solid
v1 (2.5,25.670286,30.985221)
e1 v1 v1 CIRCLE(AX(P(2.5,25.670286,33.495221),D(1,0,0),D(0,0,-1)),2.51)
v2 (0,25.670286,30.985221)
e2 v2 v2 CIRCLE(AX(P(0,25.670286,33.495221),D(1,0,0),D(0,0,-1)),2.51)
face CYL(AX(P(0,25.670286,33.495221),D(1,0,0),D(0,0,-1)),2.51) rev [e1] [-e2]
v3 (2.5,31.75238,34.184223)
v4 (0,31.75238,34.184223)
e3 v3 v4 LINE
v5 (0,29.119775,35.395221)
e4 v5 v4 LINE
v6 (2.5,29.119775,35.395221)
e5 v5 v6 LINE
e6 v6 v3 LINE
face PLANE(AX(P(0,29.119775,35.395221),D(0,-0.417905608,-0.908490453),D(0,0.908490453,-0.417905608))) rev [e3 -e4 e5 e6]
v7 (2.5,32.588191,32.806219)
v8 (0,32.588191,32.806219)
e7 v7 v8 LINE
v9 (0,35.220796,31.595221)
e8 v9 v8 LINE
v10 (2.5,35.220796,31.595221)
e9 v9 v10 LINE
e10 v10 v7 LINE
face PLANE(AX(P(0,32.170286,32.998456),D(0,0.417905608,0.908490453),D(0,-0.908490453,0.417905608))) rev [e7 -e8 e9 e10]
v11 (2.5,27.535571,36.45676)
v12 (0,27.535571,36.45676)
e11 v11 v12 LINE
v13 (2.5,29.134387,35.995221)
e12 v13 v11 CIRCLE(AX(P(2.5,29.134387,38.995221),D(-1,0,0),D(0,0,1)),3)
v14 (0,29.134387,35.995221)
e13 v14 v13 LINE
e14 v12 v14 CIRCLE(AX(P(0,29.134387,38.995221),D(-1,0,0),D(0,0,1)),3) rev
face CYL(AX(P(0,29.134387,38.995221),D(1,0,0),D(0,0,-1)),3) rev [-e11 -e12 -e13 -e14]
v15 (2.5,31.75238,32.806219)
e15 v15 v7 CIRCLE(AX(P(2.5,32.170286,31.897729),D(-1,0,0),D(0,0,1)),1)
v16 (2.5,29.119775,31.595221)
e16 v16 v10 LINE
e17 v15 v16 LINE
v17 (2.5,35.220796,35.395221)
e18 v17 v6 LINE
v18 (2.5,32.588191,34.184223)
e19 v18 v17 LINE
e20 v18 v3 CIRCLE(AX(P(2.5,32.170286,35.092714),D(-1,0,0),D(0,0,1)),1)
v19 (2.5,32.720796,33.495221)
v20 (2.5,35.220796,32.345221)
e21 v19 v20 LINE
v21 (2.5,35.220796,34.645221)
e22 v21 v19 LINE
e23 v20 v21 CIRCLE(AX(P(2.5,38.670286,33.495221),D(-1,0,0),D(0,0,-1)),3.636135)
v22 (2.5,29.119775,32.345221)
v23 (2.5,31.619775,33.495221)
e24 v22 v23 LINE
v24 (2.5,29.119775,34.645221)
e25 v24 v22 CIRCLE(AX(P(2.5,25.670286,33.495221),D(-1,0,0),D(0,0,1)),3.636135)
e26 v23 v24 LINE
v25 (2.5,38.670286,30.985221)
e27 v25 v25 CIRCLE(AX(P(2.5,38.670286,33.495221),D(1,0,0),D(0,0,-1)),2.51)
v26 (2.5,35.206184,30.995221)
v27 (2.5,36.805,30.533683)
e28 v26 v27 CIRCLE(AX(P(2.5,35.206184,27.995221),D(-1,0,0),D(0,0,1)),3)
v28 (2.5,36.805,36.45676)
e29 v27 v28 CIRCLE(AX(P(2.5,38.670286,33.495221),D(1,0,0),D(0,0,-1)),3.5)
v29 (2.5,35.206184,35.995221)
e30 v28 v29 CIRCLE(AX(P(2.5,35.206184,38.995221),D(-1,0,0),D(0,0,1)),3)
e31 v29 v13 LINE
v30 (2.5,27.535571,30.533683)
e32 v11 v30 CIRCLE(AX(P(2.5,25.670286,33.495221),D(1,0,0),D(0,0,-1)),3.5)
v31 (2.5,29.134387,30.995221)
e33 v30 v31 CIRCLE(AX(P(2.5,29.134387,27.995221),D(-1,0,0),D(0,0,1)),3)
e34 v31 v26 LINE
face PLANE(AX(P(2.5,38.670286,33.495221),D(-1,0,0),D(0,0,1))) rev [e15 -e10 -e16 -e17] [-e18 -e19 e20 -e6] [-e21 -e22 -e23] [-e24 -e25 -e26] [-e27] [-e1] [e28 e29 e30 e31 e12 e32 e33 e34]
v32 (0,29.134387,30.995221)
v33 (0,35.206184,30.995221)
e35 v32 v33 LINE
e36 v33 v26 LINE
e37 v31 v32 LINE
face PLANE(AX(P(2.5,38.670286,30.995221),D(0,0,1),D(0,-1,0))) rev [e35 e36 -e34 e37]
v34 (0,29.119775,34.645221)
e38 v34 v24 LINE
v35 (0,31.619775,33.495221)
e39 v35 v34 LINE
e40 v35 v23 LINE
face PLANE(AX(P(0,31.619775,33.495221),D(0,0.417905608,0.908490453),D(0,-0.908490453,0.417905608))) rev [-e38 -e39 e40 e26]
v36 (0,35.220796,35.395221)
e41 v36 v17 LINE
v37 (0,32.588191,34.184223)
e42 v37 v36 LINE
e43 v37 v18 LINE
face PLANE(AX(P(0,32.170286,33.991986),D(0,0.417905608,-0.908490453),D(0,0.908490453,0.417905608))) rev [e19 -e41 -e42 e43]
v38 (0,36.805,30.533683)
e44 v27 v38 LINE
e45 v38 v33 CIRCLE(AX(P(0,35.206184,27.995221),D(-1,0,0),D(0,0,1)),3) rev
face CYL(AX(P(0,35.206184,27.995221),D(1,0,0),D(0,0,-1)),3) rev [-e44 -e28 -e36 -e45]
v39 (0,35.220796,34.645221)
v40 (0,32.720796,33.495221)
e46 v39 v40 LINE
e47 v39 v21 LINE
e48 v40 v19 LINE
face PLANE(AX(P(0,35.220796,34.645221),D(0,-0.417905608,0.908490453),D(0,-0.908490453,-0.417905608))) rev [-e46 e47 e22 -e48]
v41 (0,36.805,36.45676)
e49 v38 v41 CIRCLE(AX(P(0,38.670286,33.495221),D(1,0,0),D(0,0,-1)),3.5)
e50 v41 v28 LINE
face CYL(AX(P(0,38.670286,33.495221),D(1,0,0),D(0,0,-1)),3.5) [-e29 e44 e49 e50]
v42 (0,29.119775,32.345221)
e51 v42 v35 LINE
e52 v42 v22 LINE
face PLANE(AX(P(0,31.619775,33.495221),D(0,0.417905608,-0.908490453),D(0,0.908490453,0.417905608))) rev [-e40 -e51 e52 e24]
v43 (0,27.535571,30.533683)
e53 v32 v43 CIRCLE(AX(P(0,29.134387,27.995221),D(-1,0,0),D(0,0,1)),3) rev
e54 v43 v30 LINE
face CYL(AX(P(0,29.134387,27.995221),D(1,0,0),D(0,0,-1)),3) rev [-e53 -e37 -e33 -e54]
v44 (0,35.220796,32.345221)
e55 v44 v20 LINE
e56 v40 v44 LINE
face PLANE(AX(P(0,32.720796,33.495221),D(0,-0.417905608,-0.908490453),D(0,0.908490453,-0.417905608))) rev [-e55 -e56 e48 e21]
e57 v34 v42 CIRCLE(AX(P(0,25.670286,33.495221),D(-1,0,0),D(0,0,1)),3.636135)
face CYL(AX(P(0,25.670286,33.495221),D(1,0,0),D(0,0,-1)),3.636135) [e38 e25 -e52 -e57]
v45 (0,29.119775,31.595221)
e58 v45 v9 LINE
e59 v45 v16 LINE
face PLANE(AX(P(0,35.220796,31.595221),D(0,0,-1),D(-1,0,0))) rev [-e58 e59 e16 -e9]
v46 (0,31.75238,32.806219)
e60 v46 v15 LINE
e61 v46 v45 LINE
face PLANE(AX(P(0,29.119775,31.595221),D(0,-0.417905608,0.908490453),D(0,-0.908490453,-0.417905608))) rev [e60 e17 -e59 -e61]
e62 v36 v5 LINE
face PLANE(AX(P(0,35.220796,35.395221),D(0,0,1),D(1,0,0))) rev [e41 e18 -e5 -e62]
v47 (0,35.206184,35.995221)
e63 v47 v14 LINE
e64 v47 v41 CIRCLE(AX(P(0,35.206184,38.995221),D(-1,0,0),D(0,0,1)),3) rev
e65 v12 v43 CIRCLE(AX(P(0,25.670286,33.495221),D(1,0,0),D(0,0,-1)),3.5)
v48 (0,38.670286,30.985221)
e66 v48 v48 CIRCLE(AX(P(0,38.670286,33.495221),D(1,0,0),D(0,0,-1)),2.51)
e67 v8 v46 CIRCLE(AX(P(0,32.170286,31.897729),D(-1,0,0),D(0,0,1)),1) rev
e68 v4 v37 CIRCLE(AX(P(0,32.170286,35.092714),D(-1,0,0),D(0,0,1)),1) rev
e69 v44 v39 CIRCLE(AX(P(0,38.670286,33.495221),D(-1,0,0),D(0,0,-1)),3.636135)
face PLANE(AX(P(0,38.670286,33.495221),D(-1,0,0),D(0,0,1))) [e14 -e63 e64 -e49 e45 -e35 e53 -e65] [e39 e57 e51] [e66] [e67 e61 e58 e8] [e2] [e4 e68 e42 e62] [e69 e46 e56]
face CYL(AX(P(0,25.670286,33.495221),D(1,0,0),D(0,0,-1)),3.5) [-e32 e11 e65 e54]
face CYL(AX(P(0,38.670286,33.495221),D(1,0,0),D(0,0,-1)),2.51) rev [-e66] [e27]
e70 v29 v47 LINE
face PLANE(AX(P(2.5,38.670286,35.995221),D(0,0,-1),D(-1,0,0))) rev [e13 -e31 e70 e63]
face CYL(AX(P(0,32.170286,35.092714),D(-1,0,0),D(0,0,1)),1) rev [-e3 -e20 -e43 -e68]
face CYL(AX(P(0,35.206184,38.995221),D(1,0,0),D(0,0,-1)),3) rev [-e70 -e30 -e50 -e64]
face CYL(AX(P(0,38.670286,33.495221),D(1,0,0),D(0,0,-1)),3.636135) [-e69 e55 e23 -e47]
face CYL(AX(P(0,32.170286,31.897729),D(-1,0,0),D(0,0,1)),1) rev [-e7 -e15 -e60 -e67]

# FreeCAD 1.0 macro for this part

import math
import FreeCAD as App
import Part
import Sketcher
Q = App.Units.Quantity


def edges_at(feature, points):
    """Names of the edges that pass closest to the given points."""
    edges = feature.Shape.Edges
    near = lambda p: min(range(len(edges)), key=lambda i: edges[i].distToShape(Part.Vertex(*p))[0])
    return sorted({f"Edge{near(p) + 1}" for p in points})

doc = App.newDocument("Part")
params = doc.addObject("Spreadsheet::Sheet", "Params")
for row, (alias, value) in enumerate([
    ("sketch1_radius", "2.5 mm"),
    ("sketch1_width", "13 mm"),
    ("pad1_length", "2.5 mm"),
    ("sketch2_diameter", "7 mm"),
    ("pad2_length", "2.5 mm"),
    ("sketch3_diameter", "5.02 mm"),
    ("pocket1_length", "2.5 mm"),
    ("pocket2_length", "2.5 mm"),
    ("fillet_radius", "3 mm"),
    ("fillet2_radius", "1 mm"),
], start=1):
    params.set(f"A{row}", alias)
    params.set(f"B{row}", "=" + value)
    params.setAlias(f"B{row}", alias)

body = doc.addObject("PartDesign::Body", "Body")

sketch1 = doc.addObject("Sketcher::SketchObject", "Sketch")
body.addObject(sketch1)
sketch1.AttachmentSupport = (doc.YZ_Plane, [""])
sketch1.MapMode = "FlatFace"
sketch1.addGeometry(Part.LineSegment(App.Vector(38.7, 36, 0), App.Vector(25.7, 36, 0)), False)
sketch1.addGeometry(Part.ArcOfCircle(Part.Circle(App.Vector(25.7, 33.5, 0), App.Vector(0, 0, 1), 2.5), math.radians(90), math.radians(270)), False)
sketch1.addGeometry(Part.LineSegment(App.Vector(25.7, 31, 0), App.Vector(38.7, 31, 0)), False)
sketch1.addGeometry(Part.ArcOfCircle(Part.Circle(App.Vector(38.7, 33.5, 0), App.Vector(0, 0, 1), 2.5), math.radians(-90), math.radians(90)), False)
sketch1.addConstraint(Sketcher.Constraint("Tangent", 0, 2, 1, 1))
sketch1.addConstraint(Sketcher.Constraint("Tangent", 1, 2, 2, 1))
sketch1.addConstraint(Sketcher.Constraint("Tangent", 2, 2, 3, 1))
sketch1.addConstraint(Sketcher.Constraint("Tangent", 3, 2, 0, 1))
sketch1.addConstraint(Sketcher.Constraint("Horizontal", 0))
sketch1.addConstraint(Sketcher.Constraint("Horizontal", 2))
sketch1.addConstraint(Sketcher.Constraint("Radius", 1, Q("2.5 mm")))
sketch1.addConstraint(Sketcher.Constraint("DistanceX", 0, 2, 0, 1, Q("13 mm")))
sketch1.addConstraint(Sketcher.Constraint("DistanceY", -1, 1, 1, 3, Q("33.495221 mm")))
sketch1.addConstraint(Sketcher.Constraint("DistanceX", -1, 1, 1, 3, Q("25.670286 mm")))
sketch1.setExpression("Constraints[6]", "Params.sketch1_radius")
sketch1.setExpression("Constraints[7]", "Params.sketch1_width")
pad1 = doc.addObject("PartDesign::Pad", "Pad")
body.addObject(pad1)
pad1.Profile = sketch1
pad1.setExpression("Length", "Params.pad1_length")

sketch2 = doc.addObject("Sketcher::SketchObject", "Sketch001")
body.addObject(sketch2)
sketch2.AttachmentSupport = (doc.YZ_Plane, [""])
sketch2.MapMode = "FlatFace"
sketch2.AttachmentOffset = App.Placement(App.Vector(0, 0, 2.5), App.Rotation())
sketch2.addGeometry(Part.Circle(App.Vector(38.7, 33.5, 0), App.Vector(0, 0, 1), 3.5), False)
sketch2.addGeometry(Part.Circle(App.Vector(25.7, 33.5, 0), App.Vector(0, 0, 1), 3.5), False)
sketch2.addConstraint(Sketcher.Constraint("Equal", 0, 1))
sketch2.addConstraint(Sketcher.Constraint("Horizontal", 0, 3, 1, 3))
sketch2.addConstraint(Sketcher.Constraint("Diameter", 0, Q("7 mm")))
sketch2.addConstraint(Sketcher.Constraint("DistanceX", 1, 3, 0, 3, Q("13 mm")))
sketch2.addConstraint(Sketcher.Constraint("DistanceY", -1, 1, 0, 3, Q("33.495221 mm")))
sketch2.addConstraint(Sketcher.Constraint("DistanceX", -1, 1, 0, 3, Q("38.670286 mm")))
sketch2.setExpression("Constraints[2]", "Params.sketch2_diameter")
pad2 = doc.addObject("PartDesign::Pad", "Pad001")
body.addObject(pad2)
pad2.Profile = sketch2
pad2.setExpression("Length", "Params.pad2_length")
pad2.Reversed = True

sketch3 = doc.addObject("Sketcher::SketchObject", "Sketch002")
body.addObject(sketch3)
sketch3.AttachmentSupport = (doc.YZ_Plane, [""])
sketch3.MapMode = "FlatFace"
sketch3.AttachmentOffset = App.Placement(App.Vector(0, 0, 2.5), App.Rotation())
sketch3.addGeometry(Part.Circle(App.Vector(38.7, 33.5, 0), App.Vector(0, 0, 1), 2.5), False)
sketch3.addGeometry(Part.Circle(App.Vector(25.7, 33.5, 0), App.Vector(0, 0, 1), 2.5), False)
sketch3.addConstraint(Sketcher.Constraint("Equal", 0, 1))
sketch3.addConstraint(Sketcher.Constraint("Horizontal", 0, 3, 1, 3))
sketch3.addConstraint(Sketcher.Constraint("Diameter", 0, Q("5.02 mm")))
sketch3.addConstraint(Sketcher.Constraint("DistanceX", 1, 3, 0, 3, Q("13 mm")))
sketch3.addConstraint(Sketcher.Constraint("DistanceY", -1, 1, 0, 3, Q("33.495221 mm")))
sketch3.addConstraint(Sketcher.Constraint("DistanceX", -1, 1, 0, 3, Q("38.670286 mm")))
sketch3.setExpression("Constraints[2]", "Params.sketch3_diameter")
pocket1 = doc.addObject("PartDesign::Pocket", "Pocket")
body.addObject(pocket1)
pocket1.Profile = sketch3
pocket1.setExpression("Length", "Params.pocket1_length")

sketch4 = doc.addObject("Sketcher::SketchObject", "Sketch003")
body.addObject(sketch4)
sketch4.AttachmentSupport = (doc.YZ_Plane, [""])
sketch4.MapMode = "FlatFace"
sketch4.AttachmentOffset = App.Placement(App.Vector(0, 0, 2.5), App.Rotation())
sketch4.addGeometry(Part.LineSegment(App.Vector(35.2, 35.4, 0), App.Vector(29.1, 35.4, 0)), False)
sketch4.addGeometry(Part.LineSegment(App.Vector(29.1, 35.4, 0), App.Vector(32.2, 34, 0)), False)
sketch4.addGeometry(Part.LineSegment(App.Vector(32.2, 34, 0), App.Vector(35.2, 35.4, 0)), False)
sketch4.addGeometry(Part.LineSegment(App.Vector(29.1, 31.6, 0), App.Vector(35.2, 31.6, 0)), False)
sketch4.addGeometry(Part.LineSegment(App.Vector(35.2, 31.6, 0), App.Vector(32.2, 33, 0)), False)
sketch4.addGeometry(Part.LineSegment(App.Vector(32.2, 33, 0), App.Vector(29.1, 31.6, 0)), False)
sketch4.addGeometry(Part.LineSegment(App.Vector(35.2, 34.6, 0), App.Vector(32.7, 33.5, 0)), False)
sketch4.addGeometry(Part.LineSegment(App.Vector(32.7, 33.5, 0), App.Vector(35.2, 32.3, 0)), False)
sketch4.addGeometry(Part.ArcOfCircle(Part.Circle(App.Vector(38.7, 33.5, 0), App.Vector(0, 0, 1), 3.6), math.radians(162), math.radians(198)), False)
sketch4.addGeometry(Part.LineSegment(App.Vector(29.1, 32.3, 0), App.Vector(31.6, 33.5, 0)), False)
sketch4.addGeometry(Part.LineSegment(App.Vector(31.6, 33.5, 0), App.Vector(29.1, 34.6, 0)), False)
sketch4.addGeometry(Part.ArcOfCircle(Part.Circle(App.Vector(25.7, 33.5, 0), App.Vector(0, 0, 1), 3.6), math.radians(-18), math.radians(18)), False)
sketch4.addConstraint(Sketcher.Constraint("Coincident", 0, 2, 1, 1))
sketch4.addConstraint(Sketcher.Constraint("Coincident", 1, 2, 2, 1))
sketch4.addConstraint(Sketcher.Constraint("Coincident", 2, 2, 0, 1))
sketch4.addConstraint(Sketcher.Constraint("Coincident", 3, 2, 4, 1))
sketch4.addConstraint(Sketcher.Constraint("Coincident", 4, 2, 5, 1))
sketch4.addConstraint(Sketcher.Constraint("Coincident", 5, 2, 3, 1))
sketch4.addConstraint(Sketcher.Constraint("Coincident", 6, 2, 7, 1))
sketch4.addConstraint(Sketcher.Constraint("Coincident", 7, 2, 8, 2))
sketch4.addConstraint(Sketcher.Constraint("Coincident", 8, 1, 6, 1))
sketch4.addConstraint(Sketcher.Constraint("Coincident", 9, 2, 10, 1))
sketch4.addConstraint(Sketcher.Constraint("Coincident", 10, 2, 11, 2))
sketch4.addConstraint(Sketcher.Constraint("Coincident", 11, 1, 9, 1))
sketch4.addConstraint(Sketcher.Constraint("Horizontal", 0))
sketch4.addConstraint(Sketcher.Constraint("Horizontal", 3))
sketch4.addConstraint(Sketcher.Constraint("Equal", 8, 11))
sketch4.addConstraint(Sketcher.Constraint("Parallel", 1, 4))
sketch4.addConstraint(Sketcher.Constraint("Parallel", 2, 5))
sketch4.addConstraint(Sketcher.Constraint("Parallel", 5, 6))
sketch4.addConstraint(Sketcher.Constraint("Parallel", 4, 7))
sketch4.addConstraint(Sketcher.Constraint("Parallel", 6, 9))
sketch4.addConstraint(Sketcher.Constraint("Parallel", 7, 10))
sketch4.addConstraint(Sketcher.Constraint("Horizontal", 8, 3, 11, 3))
sketch4.addConstraint(Sketcher.Constraint("Horizontal", 11, 3, 6, 2))
sketch4.addConstraint(Sketcher.Constraint("Horizontal", 6, 2, 9, 2))
sketch4.addConstraint(Sketcher.Constraint("Horizontal", 8, 1, 10, 2))
sketch4.addConstraint(Sketcher.Constraint("Horizontal", 7, 2, 11, 1))
sketch4.addConstraint(Sketcher.Constraint("Vertical", 2, 2, 3, 2))
sketch4.addConstraint(Sketcher.Constraint("Vertical", 1, 2, 4, 2))
sketch4.addConstraint(Sketcher.Constraint("Vertical", 3, 2, 7, 2))
sketch4.addConstraint(Sketcher.Constraint("Vertical", 5, 2, 10, 2))
sketch4.addConstraint(Sketcher.Constraint("DistanceX", 11, 3, 8, 3, Q("13 mm")))
sketch4.addConstraint(Sketcher.Constraint("DistanceY", 11, 3, 0, 2, Q("1.9 mm")))
sketch4.addConstraint(Sketcher.Constraint("DistanceY", 3, 2, 2, 2, Q("3.8 mm")))
sketch4.addConstraint(Sketcher.Constraint("DistanceX", 6, 2, 2, 2, Q("2.5 mm")))
sketch4.addConstraint(Sketcher.Constraint("DistanceY", 7, 2, 8, 1, Q("2.3 mm")))
sketch4.addConstraint(Sketcher.Constraint("Radius", 8, Q("3.636135 mm")))
sketch4.addConstraint(Sketcher.Constraint("DistanceY", -1, 1, 8, 3, Q("33.495221 mm")))
sketch4.addConstraint(Sketcher.Constraint("DistanceX", -1, 1, 8, 3, Q("38.670286 mm")))
pocket2 = doc.addObject("PartDesign::Pocket", "Pocket001")
body.addObject(pocket2)
pocket2.Profile = sketch4
pocket2.setExpression("Length", "Params.pocket2_length")
doc.recompute()

fillet = doc.addObject("PartDesign::Fillet", "Fillet")
body.addObject(fillet)
fillet.Base = (pocket2, edges_at(pocket2, [
    (1.25, 36.221, 35.995),
    (1.25, 36.221, 30.995),
    (1.25, 28.12, 35.995),
    (1.25, 28.12, 30.995),
]))
fillet.setExpression("Radius", "Params.fillet_radius")
doc.recompute()

fillet2 = doc.addObject("PartDesign::Fillet", "Fillet001")
body.addObject(fillet2)
fillet2.Base = (fillet, edges_at(fillet, [(1.25, 32.17, 32.998), (1.25, 32.17, 33.992)]))
fillet2.setExpression("Radius", "Params.fillet2_radius")

doc.recompute()
